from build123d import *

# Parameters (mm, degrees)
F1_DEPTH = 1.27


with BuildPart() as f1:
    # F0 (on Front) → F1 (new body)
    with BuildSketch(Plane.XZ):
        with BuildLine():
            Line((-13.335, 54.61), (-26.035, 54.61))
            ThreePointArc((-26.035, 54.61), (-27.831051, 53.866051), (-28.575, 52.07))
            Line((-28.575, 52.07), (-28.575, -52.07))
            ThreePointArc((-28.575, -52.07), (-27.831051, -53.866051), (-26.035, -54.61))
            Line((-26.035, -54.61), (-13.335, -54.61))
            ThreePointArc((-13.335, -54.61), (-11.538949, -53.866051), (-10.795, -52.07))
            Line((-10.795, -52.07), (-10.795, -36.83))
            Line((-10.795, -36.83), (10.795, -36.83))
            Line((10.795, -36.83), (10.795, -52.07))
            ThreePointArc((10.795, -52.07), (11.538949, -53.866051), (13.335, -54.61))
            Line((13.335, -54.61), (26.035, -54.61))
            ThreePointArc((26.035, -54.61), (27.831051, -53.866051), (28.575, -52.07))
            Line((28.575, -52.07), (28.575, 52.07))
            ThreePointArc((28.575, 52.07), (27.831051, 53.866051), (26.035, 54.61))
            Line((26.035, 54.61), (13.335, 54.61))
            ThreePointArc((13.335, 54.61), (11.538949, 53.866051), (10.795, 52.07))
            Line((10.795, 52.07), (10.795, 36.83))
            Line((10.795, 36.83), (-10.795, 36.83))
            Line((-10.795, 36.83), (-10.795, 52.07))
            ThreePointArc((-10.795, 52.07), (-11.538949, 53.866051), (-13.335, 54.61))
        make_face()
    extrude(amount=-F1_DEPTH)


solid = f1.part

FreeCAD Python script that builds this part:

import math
import FreeCAD as App
import Part
import Sketcher
from FreeCAD import Vector
Q = App.Units.Quantity

doc = App.newDocument("Part")
body = doc.addObject("PartDesign::Body", "Body")

# Sketch on XZ plane
sketch1 = doc.addObject("Sketcher::SketchObject", "Sketch")
body.addObject(sketch1)
sketch1.AttachmentSupport = (doc.XZ_Plane, [""])
sketch1.MapMode = "FlatFace"
sketch1.addGeometry([
    Part.LineSegment(Vector(-13.3, 54.6, 0), Vector(-26, 54.6, 0)),  # 0
    Part.ArcOfCircle(Part.Circle(Vector(-26, 52.1, 0), Vector(0, 0, 1), 2.5), math.radians(90), math.radians(180)),  # 1
    Part.LineSegment(Vector(-28.6, 52.1, 0), Vector(-28.6, -52.1, 0)),  # 2
    Part.ArcOfCircle(Part.Circle(Vector(-26, -52.1, 0), Vector(0, 0, 1), 2.5), math.radians(-180), math.radians(-90)),  # 3
    Part.LineSegment(Vector(-26, -54.6, 0), Vector(-13.3, -54.6, 0)),  # 4
    Part.ArcOfCircle(Part.Circle(Vector(-13.3, -52.1, 0), Vector(0, 0, 1), 2.5), math.radians(-90), math.radians(0)),  # 5
    Part.LineSegment(Vector(-10.8, -52.1, 0), Vector(-10.8, -36.8, 0)),  # 6
    Part.LineSegment(Vector(-10.8, -36.8, 0), Vector(10.8, -36.8, 0)),  # 7
    Part.LineSegment(Vector(10.8, -36.8, 0), Vector(10.8, -52.1, 0)),  # 8
    Part.ArcOfCircle(Part.Circle(Vector(13.3, -52.1, 0), Vector(0, 0, 1), 2.5), math.radians(-180), math.radians(-90)),  # 9
    Part.LineSegment(Vector(13.3, -54.6, 0), Vector(26, -54.6, 0)),  # 10
    Part.ArcOfCircle(Part.Circle(Vector(26, -52.1, 0), Vector(0, 0, 1), 2.5), math.radians(-90), math.radians(0)),  # 11
    Part.LineSegment(Vector(28.6, -52.1, 0), Vector(28.6, 52.1, 0)),  # 12
    Part.ArcOfCircle(Part.Circle(Vector(26, 52.1, 0), Vector(0, 0, 1), 2.5), math.radians(0), math.radians(90)),  # 13
    Part.LineSegment(Vector(26, 54.6, 0), Vector(13.3, 54.6, 0)),  # 14
    Part.ArcOfCircle(Part.Circle(Vector(13.3, 52.1, 0), Vector(0, 0, 1), 2.5), math.radians(90), math.radians(180)),  # 15
    Part.LineSegment(Vector(10.8, 52.1, 0), Vector(10.8, 36.8, 0)),  # 16
    Part.LineSegment(Vector(10.8, 36.8, 0), Vector(-10.8, 36.8, 0)),  # 17
    Part.LineSegment(Vector(-10.8, 36.8, 0), Vector(-10.8, 52.1, 0)),  # 18
    Part.ArcOfCircle(Part.Circle(Vector(-13.3, 52.1, 0), Vector(0, 0, 1), 2.5), math.radians(0), math.radians(90)),  # 19
], False)
sketch1.addConstraint([
    Sketcher.Constraint("Tangent", 0, 2, 1, 1),
    Sketcher.Constraint("Tangent", 1, 2, 2, 1),
    Sketcher.Constraint("Tangent", 2, 2, 3, 1),
    Sketcher.Constraint("Tangent", 3, 2, 4, 1),
    Sketcher.Constraint("Tangent", 4, 2, 5, 1),
    Sketcher.Constraint("Tangent", 5, 2, 6, 1),
    Sketcher.Constraint("Coincident", 6, 2, 7, 1),
    Sketcher.Constraint("Coincident", 7, 2, 8, 1),
    Sketcher.Constraint("Tangent", 8, 2, 9, 1),
    Sketcher.Constraint("Tangent", 9, 2, 10, 1),
    Sketcher.Constraint("Tangent", 10, 2, 11, 1),
    Sketcher.Constraint("Tangent", 11, 2, 12, 1),
    Sketcher.Constraint("Tangent", 12, 2, 13, 1),
    Sketcher.Constraint("Tangent", 13, 2, 14, 1),
    Sketcher.Constraint("Tangent", 14, 2, 15, 1),
    Sketcher.Constraint("Tangent", 15, 2, 16, 1),
    Sketcher.Constraint("Coincident", 16, 2, 17, 1),
    Sketcher.Constraint("Coincident", 17, 2, 18, 1),
    Sketcher.Constraint("Tangent", 18, 2, 19, 1),
    Sketcher.Constraint("Tangent", 19, 2, 0, 1),
    Sketcher.Constraint("Horizontal", 0),
    Sketcher.Constraint("Vertical", 2),
    Sketcher.Constraint("Horizontal", 4),
    Sketcher.Constraint("Vertical", 6),
    Sketcher.Constraint("Horizontal", 7),
    Sketcher.Constraint("Vertical", 8),
    Sketcher.Constraint("Horizontal", 10),
    Sketcher.Constraint("Vertical", 12),
    Sketcher.Constraint("Horizontal", 14),
    Sketcher.Constraint("Vertical", 16),
    Sketcher.Constraint("Horizontal", 17),
    Sketcher.Constraint("Vertical", 18),
    Sketcher.Constraint("Equal", 1, 3),
    Sketcher.Constraint("Equal", 3, 5),
    Sketcher.Constraint("Equal", 5, 9),
    Sketcher.Constraint("Equal", 9, 11),
    Sketcher.Constraint("Equal", 11, 13),
    Sketcher.Constraint("Equal", 13, 15),
    Sketcher.Constraint("Equal", 15, 19),
    Sketcher.Constraint("Symmetric", 1, 3, 11, 3, -1, 1),
    Sketcher.Constraint("Symmetric", 5, 3, 15, 3, -1, 1),
    Sketcher.Constraint("Symmetric", 7, 2, 17, 2, -1, 1),
    Sketcher.Constraint("Symmetric", 5, 3, 9, 3, -2),
    Sketcher.Constraint("Radius", 1, Q("0.1 in")),
    Sketcher.Constraint("DistanceX", 0, 2, 0, 1, Q("0.5 in")),
    Sketcher.Constraint("DistanceY", 2, 2, 2, 1, Q("4.1 in")),
    Sketcher.Constraint("DistanceY", 6, 1, 6, 2, Q("0.6 in")),
    Sketcher.Constraint("DistanceX", 7, 1, 7, 2, Q("0.85 in")),
])
pad1 = doc.addObject("PartDesign::Pad", "Pad")
body.addObject(pad1)
pad1.Profile = sketch1
pad1.Length = Q("0.05 in")
pad1.Reversed = True

doc.recompute()
